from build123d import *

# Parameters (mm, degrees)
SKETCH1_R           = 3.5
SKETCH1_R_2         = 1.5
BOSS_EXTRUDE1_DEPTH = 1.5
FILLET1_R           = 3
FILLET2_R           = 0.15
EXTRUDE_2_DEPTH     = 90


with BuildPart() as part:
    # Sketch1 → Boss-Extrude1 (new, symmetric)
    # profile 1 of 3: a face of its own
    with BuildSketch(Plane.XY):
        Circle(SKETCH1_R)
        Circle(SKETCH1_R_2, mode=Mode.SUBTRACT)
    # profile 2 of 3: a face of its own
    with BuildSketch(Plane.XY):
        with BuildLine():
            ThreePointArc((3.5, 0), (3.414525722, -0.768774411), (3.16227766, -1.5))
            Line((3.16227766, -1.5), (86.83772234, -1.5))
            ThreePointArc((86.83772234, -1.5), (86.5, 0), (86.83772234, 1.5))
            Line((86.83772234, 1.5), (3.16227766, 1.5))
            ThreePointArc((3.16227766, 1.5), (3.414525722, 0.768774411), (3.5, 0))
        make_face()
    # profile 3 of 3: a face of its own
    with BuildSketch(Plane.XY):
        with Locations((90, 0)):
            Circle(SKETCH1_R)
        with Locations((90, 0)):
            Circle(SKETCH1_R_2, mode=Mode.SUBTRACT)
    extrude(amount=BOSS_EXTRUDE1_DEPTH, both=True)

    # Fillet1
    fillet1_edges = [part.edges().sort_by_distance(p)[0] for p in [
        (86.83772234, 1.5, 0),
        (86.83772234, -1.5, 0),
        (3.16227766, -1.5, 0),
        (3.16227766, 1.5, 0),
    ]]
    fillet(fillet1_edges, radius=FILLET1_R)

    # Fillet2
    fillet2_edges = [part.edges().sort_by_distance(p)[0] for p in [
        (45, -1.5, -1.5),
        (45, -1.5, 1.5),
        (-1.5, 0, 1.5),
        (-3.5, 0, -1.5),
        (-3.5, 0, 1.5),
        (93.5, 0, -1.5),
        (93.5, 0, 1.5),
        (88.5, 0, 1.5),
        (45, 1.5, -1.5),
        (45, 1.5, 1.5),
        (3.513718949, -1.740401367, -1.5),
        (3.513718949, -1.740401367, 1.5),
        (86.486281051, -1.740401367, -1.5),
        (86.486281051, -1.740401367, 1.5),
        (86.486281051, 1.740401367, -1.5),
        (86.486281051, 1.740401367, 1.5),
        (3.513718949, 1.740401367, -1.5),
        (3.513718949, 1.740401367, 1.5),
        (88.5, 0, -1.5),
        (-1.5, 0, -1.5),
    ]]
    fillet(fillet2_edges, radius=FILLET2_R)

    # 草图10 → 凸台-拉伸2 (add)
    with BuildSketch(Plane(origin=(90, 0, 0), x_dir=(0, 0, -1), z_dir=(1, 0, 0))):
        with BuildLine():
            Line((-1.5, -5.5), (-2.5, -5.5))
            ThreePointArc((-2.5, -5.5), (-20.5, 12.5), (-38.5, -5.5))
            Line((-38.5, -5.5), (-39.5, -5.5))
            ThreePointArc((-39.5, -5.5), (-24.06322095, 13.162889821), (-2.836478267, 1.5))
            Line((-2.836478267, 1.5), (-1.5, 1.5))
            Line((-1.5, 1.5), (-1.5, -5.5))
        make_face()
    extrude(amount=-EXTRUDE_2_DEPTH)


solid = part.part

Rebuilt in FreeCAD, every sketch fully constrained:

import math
import FreeCAD as App
import Part
import Sketcher
Q = App.Units.Quantity


def edges_at(feature, points):
    """Names of the edges that pass closest to the given points."""
    edges = feature.Shape.Edges
    near = lambda p: min(range(len(edges)), key=lambda i: edges[i].distToShape(Part.Vertex(*p))[0])
    return sorted({f"Edge{near(p) + 1}" for p in points})

doc = App.newDocument("Part")
body = doc.addObject("PartDesign::Body", "Body")

# Sketch on XY plane
sketch1 = body.newObject("Sketcher::SketchObject", "Sketch")
sketch1.AttachmentSupport = (doc.getObject("XY_Plane"), [""])
sketch1.MapMode = "FlatFace"
sketch1.addGeometry([
    Part.ArcOfCircle(Part.Circle(App.Vector(0, 0, 0), App.Vector(0, 0, 1), 3.5), math.radians(25.376934), math.radians(334.623066)),  # 0
    Part.LineSegment(App.Vector(3.162278, -1.5, 0), App.Vector(86.837722, -1.5, 0)),  # 1
    Part.ArcOfCircle(Part.Circle(App.Vector(90, 0, 0), App.Vector(0, 0, 1), 3.5), math.radians(-154.623066), math.radians(154.623066)),  # 2
    Part.LineSegment(App.Vector(86.837722, 1.5, 0), App.Vector(3.162278, 1.5, 0)),  # 3
    Part.Circle(App.Vector(0, 0, 0), App.Vector(0, 0, 1), 1.5),  # 4
    Part.Circle(App.Vector(90, 0, 0), App.Vector(0, 0, 1), 1.5),  # 5
], False)
sketch1.addConstraint([
    Sketcher.Constraint("Coincident", 0, 2, 1, 1),
    Sketcher.Constraint("Coincident", 1, 2, 2, 1),
    Sketcher.Constraint("Coincident", 2, 2, 3, 1),
    Sketcher.Constraint("Coincident", 3, 2, 0, 1),
    Sketcher.Constraint("Horizontal", 1),
    Sketcher.Constraint("Horizontal", 3),
    Sketcher.Constraint("Coincident", 0, 3, -1, 1),
    Sketcher.Constraint("Coincident", 4, 3, -1, 1),
    Sketcher.Constraint("Coincident", 5, 3, 2, 3),
    Sketcher.Constraint("Equal", 0, 2),
    Sketcher.Constraint("Equal", 4, 5),
    Sketcher.Constraint("Symmetric", 1, 2, 2, 2, -1),
    Sketcher.Constraint("Diameter", 4, Q("3 mm")),
    Sketcher.Constraint("Radius", 0, Q("3.5 mm")),
    Sketcher.Constraint("DistanceX", -1, 1, 2, 3, Q("90 mm")),
    Sketcher.Constraint("DistanceY", 1, 2, 2, 2, Q("3 mm")),
])
pad1 = body.newObject("PartDesign::Pad", "Pad")
pad1.Profile = sketch1
pad1.Length = 3
pad1.Midplane = True
doc.recompute()

fillet = body.newObject("PartDesign::Fillet", "Fillet")
fillet.Base = (pad1, edges_at(pad1, [
    (86.838, 1.5, 0),
    (86.838, -1.5, 0.75),
    (3.162, -1.5, -0.75),
    (3.162, 1.5, 0),
]))
fillet.Radius = 3
doc.recompute()

fillet2 = body.newObject("PartDesign::Fillet", "Fillet001")
fillet2.Base = (fillet, edges_at(fillet, [
    (45, -1.5, -1.5),
    (45, -1.5, 1.5),
    (-1.5, 0, 1.5),
    (-3.5, 0, -1.5),
    (-3.5, 0, 1.5),
    (93.5, 0, -1.5),
    (93.5, 0, 1.5),
    (88.5, 0, 1.5),
    (45, 1.5, -1.5),
    (45, 1.5, 1.5),
    (3.514, -1.74, -1.5),
    (3.514, -1.74, 1.5),
    (86.486, -1.74, -1.5),
    (86.486, -1.74, 1.5),
    (86.486, 1.74, -1.5),
    (86.486, 1.74, 1.5),
    (3.514, 1.74, -1.5),
    (3.514, 1.74, 1.5),
    (88.5, 0, -1.5),
    (-1.5, 0, -1.5),
]))
fillet2.Radius = 0.15

# Sketch on YZ plane
sketch2 = body.newObject("Sketcher::SketchObject", "Sketch001")
sketch2.AttachmentSupport = (doc.getObject("YZ_Plane"), [""])
sketch2.MapMode = "FlatFace"
sketch2.AttachmentOffset = App.Placement(App.Vector(0, 0, 90), App.Rotation())
sketch2.addGeometry([
    Part.LineSegment(App.Vector(-5.5, 2.5, 0), App.Vector(-5.5, 1.5, 0)),  # 0
    Part.LineSegment(App.Vector(-5.5, 1.5, 0), App.Vector(1.5, 1.5, 0)),  # 1
    Part.LineSegment(App.Vector(1.5, 1.5, 0), App.Vector(1.5, 2.836478, 0)),  # 2
    Part.ArcOfCircle(Part.Circle(App.Vector(-5.5, 20.5, 0), App.Vector(0, 0, 1), 19), math.radians(-68.381728), math.radians(90)),  # 3
    Part.LineSegment(App.Vector(-5.5, 39.5, 0), App.Vector(-5.5, 38.5, 0)),  # 4
    Part.ArcOfCircle(Part.Circle(App.Vector(-5.5, 20.5, 0), App.Vector(0, 0, 1), 18), math.radians(-90), math.radians(90)),  # 5
], False)
sketch2.addConstraint([
    Sketcher.Constraint("Coincident", 0, 2, 1, 1),
    Sketcher.Constraint("Coincident", 1, 2, 2, 1),
    Sketcher.Constraint("Coincident", 2, 2, 3, 1),
    Sketcher.Constraint("Coincident", 3, 2, 4, 1),
    Sketcher.Constraint("Coincident", 4, 2, 5, 2),
    Sketcher.Constraint("Coincident", 5, 1, 0, 1),
    Sketcher.Constraint("Vertical", 0),
    Sketcher.Constraint("Horizontal", 1),
    Sketcher.Constraint("Vertical", 2),
    Sketcher.Constraint("Vertical", 4),
    Sketcher.Constraint("Coincident", 5, 3, 3, 3),
    Sketcher.Constraint("Vertical", 5, 3, 0, 2),
    Sketcher.Constraint("Vertical", 0, 2, 3, 2),
    Sketcher.Constraint("Equal", 0, 4),
    Sketcher.Constraint("Radius", 3, Q("19 mm")),
    Sketcher.Constraint("Radius", 5, Q("18 mm")),
    Sketcher.Constraint("DistanceX", 1, 1, 1, 2, Q("7 mm")),
    Sketcher.Constraint("DistanceX", 3, 3, -1, 1, Q("5.5 mm")),
    Sketcher.Constraint("DistanceY", -1, 1, 3, 3, Q("20.5 mm")),
])
pad2 = body.newObject("PartDesign::Pad", "Pad001")
pad2.Profile = sketch2
pad2.Length = 90
pad2.Reversed = True

doc.recompute()
